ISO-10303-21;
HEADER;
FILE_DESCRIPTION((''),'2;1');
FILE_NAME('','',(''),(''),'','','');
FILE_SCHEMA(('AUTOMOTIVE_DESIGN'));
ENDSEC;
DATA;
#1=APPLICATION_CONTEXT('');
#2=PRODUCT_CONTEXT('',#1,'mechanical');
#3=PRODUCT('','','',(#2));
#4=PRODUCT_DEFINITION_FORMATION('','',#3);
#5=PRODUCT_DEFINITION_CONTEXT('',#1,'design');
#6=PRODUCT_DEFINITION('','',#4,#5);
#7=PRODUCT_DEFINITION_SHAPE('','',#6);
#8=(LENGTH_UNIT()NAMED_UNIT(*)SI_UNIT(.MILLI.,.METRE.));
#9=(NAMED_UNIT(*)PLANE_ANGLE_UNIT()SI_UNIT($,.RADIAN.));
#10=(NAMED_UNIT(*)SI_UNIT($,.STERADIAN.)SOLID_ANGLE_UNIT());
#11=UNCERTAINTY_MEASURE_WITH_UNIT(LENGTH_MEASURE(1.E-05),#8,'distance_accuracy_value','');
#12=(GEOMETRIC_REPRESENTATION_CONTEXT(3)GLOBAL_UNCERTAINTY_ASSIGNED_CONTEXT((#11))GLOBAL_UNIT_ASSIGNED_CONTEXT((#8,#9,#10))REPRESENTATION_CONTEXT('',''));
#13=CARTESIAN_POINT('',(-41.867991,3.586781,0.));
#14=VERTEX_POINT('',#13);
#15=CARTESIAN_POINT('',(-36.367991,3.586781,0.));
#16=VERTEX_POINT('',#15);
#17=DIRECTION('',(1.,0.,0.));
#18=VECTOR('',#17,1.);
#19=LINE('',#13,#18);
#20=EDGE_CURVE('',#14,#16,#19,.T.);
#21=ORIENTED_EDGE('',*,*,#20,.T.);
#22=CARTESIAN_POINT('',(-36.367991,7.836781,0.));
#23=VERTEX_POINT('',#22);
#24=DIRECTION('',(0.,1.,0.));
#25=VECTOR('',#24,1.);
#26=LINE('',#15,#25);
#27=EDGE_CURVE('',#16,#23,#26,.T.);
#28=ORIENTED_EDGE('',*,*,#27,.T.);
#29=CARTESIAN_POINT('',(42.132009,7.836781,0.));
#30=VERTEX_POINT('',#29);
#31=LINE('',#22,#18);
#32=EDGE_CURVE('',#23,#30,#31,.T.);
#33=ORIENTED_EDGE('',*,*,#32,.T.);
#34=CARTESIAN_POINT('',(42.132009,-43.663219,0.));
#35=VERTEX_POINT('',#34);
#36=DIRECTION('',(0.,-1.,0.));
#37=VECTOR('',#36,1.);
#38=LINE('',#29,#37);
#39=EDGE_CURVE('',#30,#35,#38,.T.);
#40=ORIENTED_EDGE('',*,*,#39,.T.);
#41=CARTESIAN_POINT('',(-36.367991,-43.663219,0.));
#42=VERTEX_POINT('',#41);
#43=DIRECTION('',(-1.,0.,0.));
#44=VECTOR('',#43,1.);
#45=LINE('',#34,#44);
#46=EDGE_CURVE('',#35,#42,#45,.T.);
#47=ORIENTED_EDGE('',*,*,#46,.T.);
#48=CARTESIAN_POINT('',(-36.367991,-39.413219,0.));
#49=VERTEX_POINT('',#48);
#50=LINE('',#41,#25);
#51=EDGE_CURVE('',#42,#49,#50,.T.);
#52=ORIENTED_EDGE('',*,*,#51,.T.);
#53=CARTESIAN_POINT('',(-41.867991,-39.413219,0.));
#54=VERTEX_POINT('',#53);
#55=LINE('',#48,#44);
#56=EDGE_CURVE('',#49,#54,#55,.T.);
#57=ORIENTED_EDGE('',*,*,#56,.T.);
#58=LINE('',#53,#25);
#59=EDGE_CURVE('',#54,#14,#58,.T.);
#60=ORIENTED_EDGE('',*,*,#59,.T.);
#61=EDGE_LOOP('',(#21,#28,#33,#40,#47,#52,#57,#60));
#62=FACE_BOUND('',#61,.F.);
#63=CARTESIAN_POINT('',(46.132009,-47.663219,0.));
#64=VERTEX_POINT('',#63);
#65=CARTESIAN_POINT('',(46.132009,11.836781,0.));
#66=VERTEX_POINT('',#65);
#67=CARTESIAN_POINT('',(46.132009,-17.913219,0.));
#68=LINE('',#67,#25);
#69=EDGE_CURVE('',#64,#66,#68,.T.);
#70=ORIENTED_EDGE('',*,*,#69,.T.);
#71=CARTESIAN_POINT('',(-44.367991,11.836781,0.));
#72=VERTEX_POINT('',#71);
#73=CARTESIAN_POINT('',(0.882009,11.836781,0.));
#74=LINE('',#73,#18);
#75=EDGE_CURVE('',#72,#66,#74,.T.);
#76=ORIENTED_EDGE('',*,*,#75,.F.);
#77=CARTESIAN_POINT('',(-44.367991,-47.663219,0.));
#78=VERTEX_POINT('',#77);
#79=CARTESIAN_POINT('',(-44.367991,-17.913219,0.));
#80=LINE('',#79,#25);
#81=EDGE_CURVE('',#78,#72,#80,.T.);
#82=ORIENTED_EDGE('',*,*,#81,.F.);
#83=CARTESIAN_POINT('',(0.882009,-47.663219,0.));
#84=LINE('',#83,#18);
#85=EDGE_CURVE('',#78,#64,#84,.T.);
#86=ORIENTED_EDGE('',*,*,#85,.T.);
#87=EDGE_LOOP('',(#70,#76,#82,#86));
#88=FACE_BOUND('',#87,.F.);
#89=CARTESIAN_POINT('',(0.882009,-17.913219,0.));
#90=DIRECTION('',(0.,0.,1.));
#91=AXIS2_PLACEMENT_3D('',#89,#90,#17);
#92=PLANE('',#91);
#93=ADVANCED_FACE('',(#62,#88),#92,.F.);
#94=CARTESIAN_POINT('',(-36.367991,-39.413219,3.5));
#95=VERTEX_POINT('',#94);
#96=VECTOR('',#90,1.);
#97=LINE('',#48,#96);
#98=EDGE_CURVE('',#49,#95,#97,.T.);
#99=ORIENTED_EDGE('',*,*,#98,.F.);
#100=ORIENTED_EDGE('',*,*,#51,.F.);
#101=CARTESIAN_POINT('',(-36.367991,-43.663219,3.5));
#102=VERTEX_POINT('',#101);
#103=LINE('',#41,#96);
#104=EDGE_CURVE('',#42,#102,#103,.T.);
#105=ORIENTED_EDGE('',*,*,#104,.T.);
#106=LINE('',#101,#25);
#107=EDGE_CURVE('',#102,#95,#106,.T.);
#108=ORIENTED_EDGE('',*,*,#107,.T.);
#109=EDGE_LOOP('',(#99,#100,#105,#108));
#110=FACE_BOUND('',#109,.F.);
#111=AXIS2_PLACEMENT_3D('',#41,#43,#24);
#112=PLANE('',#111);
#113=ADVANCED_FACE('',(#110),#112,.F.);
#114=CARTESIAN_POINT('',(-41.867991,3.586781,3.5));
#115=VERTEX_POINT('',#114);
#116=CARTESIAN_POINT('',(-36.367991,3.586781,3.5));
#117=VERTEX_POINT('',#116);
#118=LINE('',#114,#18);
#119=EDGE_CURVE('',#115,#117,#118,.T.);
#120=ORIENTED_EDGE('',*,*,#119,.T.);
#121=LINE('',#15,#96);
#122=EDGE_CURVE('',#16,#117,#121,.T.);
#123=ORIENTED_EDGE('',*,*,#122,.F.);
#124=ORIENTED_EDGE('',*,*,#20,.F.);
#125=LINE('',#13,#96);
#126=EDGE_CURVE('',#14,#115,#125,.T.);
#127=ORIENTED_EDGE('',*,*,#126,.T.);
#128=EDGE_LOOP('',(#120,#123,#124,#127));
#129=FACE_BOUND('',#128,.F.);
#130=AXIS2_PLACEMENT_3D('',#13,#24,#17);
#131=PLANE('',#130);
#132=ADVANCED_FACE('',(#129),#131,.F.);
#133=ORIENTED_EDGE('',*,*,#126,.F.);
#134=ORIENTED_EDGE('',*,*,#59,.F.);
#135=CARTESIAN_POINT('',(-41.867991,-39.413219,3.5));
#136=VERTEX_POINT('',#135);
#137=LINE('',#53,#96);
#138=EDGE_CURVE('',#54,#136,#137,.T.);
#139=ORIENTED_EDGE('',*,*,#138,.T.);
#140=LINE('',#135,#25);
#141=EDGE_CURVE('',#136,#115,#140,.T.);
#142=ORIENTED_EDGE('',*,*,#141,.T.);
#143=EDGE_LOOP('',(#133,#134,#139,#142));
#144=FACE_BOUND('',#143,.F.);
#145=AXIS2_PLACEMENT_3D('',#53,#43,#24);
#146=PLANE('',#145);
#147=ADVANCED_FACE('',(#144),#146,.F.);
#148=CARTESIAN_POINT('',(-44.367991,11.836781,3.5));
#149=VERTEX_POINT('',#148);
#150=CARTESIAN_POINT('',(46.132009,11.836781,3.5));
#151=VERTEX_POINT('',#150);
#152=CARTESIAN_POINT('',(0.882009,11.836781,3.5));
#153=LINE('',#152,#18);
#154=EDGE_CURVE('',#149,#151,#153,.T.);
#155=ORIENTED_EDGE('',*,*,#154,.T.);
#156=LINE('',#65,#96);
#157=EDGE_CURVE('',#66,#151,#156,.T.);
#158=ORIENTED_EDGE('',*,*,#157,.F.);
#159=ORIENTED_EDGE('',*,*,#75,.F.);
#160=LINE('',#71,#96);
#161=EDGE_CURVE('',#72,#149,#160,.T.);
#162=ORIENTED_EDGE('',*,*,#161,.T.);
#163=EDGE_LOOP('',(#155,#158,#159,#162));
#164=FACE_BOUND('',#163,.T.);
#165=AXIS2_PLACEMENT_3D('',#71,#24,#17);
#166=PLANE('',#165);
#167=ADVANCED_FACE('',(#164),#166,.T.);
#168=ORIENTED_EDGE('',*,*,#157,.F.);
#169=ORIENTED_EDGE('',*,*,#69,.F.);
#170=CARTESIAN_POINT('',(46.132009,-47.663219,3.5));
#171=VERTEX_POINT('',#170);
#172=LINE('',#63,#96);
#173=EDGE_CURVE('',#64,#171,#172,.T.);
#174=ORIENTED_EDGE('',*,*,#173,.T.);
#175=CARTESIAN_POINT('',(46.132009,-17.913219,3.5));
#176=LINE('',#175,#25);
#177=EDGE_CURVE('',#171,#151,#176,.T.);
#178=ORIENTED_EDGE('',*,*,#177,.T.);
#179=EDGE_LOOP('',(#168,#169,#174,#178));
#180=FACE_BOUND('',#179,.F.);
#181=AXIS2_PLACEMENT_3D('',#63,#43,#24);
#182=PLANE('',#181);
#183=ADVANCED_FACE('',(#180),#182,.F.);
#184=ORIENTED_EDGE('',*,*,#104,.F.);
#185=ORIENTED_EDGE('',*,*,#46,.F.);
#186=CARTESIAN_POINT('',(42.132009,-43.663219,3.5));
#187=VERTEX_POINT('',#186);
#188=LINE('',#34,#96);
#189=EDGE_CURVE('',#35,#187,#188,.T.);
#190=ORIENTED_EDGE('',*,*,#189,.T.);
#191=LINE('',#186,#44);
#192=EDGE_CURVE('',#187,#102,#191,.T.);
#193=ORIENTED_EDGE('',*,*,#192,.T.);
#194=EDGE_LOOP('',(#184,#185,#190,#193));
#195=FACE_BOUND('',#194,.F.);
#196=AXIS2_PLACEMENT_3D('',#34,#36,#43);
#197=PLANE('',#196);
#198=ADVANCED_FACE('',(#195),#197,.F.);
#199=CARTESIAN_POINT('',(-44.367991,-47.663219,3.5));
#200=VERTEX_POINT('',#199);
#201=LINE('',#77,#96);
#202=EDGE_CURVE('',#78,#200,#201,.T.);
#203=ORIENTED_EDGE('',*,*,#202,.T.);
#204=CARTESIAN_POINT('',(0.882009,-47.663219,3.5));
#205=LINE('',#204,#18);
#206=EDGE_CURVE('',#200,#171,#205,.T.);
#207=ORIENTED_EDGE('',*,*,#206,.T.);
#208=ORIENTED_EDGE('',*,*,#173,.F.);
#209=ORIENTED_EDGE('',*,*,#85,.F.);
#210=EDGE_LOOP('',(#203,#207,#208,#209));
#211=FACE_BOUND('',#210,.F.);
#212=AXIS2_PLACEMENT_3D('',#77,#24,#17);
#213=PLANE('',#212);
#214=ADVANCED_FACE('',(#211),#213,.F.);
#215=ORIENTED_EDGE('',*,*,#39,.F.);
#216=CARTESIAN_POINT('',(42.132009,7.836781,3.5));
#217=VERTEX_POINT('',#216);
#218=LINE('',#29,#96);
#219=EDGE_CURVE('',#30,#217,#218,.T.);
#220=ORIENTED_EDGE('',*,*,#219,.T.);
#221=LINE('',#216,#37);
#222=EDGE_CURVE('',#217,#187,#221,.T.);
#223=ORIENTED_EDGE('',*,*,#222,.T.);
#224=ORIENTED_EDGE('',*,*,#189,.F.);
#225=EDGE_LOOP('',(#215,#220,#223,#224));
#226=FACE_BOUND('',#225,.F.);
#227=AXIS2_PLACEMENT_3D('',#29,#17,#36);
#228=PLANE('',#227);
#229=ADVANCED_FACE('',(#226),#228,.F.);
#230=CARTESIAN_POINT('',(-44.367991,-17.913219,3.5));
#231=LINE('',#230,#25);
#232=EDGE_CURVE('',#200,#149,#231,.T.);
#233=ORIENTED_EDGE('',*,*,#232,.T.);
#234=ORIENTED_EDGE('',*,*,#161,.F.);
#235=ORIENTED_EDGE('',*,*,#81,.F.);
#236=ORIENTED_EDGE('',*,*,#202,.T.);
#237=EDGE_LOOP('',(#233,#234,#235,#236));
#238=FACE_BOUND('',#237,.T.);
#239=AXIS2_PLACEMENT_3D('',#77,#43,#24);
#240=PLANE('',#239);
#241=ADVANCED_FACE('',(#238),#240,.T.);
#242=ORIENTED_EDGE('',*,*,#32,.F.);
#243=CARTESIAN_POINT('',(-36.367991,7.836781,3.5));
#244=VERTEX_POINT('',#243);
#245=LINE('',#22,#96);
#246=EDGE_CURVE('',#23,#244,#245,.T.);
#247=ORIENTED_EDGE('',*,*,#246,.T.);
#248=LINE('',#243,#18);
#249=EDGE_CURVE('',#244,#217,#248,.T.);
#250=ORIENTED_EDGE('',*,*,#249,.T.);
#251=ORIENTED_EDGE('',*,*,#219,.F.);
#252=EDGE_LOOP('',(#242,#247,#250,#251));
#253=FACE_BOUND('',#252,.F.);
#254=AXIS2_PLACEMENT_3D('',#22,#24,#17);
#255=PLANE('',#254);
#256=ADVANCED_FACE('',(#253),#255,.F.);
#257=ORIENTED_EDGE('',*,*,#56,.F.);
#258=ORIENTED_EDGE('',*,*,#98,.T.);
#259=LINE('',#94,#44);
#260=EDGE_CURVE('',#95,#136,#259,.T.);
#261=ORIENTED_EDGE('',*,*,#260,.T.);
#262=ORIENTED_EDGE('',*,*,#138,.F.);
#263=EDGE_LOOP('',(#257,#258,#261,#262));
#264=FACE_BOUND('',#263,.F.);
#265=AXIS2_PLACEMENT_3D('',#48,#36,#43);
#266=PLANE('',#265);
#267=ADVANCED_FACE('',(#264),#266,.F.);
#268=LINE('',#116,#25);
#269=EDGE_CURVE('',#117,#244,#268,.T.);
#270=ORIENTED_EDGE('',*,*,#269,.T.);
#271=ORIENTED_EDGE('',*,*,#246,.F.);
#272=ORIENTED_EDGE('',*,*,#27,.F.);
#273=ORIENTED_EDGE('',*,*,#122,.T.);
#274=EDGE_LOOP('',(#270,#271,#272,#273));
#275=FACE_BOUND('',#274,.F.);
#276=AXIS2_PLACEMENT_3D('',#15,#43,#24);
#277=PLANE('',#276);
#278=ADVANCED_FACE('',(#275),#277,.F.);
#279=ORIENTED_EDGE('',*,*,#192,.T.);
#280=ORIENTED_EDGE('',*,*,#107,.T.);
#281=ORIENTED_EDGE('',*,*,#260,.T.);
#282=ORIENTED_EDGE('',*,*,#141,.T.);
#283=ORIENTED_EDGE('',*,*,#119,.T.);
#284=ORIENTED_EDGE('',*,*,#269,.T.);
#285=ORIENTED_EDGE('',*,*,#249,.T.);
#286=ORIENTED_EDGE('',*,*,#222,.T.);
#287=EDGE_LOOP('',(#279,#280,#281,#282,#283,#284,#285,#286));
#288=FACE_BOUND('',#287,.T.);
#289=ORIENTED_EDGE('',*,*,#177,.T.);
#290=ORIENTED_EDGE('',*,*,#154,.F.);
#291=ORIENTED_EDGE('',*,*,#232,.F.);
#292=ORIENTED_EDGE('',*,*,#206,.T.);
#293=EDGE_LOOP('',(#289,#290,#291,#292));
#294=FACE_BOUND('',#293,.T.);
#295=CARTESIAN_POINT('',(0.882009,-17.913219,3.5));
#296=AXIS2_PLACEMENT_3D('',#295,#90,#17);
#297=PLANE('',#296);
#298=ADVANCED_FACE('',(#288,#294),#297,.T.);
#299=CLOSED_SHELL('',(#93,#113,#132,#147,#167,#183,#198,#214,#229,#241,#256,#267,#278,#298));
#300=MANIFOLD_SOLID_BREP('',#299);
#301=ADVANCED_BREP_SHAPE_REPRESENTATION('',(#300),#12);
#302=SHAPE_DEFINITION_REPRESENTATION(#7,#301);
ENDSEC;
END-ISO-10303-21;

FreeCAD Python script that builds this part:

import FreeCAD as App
import Part
import Sketcher


def add_polygon(sketch, points):
    """Adds a closed chain of lines whose ends are joined by coincident constraints."""
    first, n = sketch.GeometryCount, len(points)
    for a, b in zip(points, points[1:] + points[:1]):
        sketch.addGeometry(Part.LineSegment(App.Vector(*a, 0), App.Vector(*b, 0)), False)
    for i in range(n):
        sketch.addConstraint(Sketcher.Constraint("Coincident", first + i, 2, first + (i + 1) % n, 1))

doc = App.newDocument("Part")
body = doc.addObject("PartDesign::Body", "Body")

# Sketch on XY plane
sketch1 = body.newObject("Sketcher::SketchObject", "Sketch")
sketch1.AttachmentSupport = (doc.getObject("XY_Plane"), [""])
sketch1.MapMode = "FlatFace"
add_polygon(sketch1, [(-44.4, 11.8), (-44.4, -47.7), (46.1, -47.7), (46.1, 11.8)])  # lines 0-3
add_polygon(sketch1, [(-36.4, -39.4), (-41.9, -39.4), (-41.9, 3.6), (-36.4, 3.6), (-36.4, 7.8), (42.1, 7.8), (42.1, -43.7), (-36.4, -43.7)])  # lines 4-11
sketch1.addConstraint([
    Sketcher.Constraint("Vertical", 0),
    Sketcher.Constraint("Horizontal", 1),
    Sketcher.Constraint("Vertical", 2),
    Sketcher.Constraint("Horizontal", 3),
    Sketcher.Constraint("Horizontal", 4),
    Sketcher.Constraint("Vertical", 5),
    Sketcher.Constraint("Horizontal", 6),
    Sketcher.Constraint("Vertical", 7),
    Sketcher.Constraint("Horizontal", 8),
    Sketcher.Constraint("Vertical", 9),
    Sketcher.Constraint("Horizontal", 10),
    Sketcher.Constraint("Vertical", 11),
    Sketcher.Constraint("Vertical", 7, 2, 10, 2),
    Sketcher.Constraint("Equal", 7, 11),
    Sketcher.Constraint("DistanceY", 5, 1, 5, 2, 43.0),
    Sketcher.Constraint("DistanceX", 1, 1, 1, 2, 90.5),
    Sketcher.Constraint("DistanceX", 4, 2, 4, 1, 5.5),
    Sketcher.Constraint("DistanceX", 8, 1, 8, 2, 78.5),
    Sketcher.Constraint("DistanceY", 0, 2, 0, 1, 59.5),
    Sketcher.Constraint("DistanceY", 9, 2, 9, 1, 51.5),
    Sketcher.Constraint("DistanceX", 4, 2, 1, 2, 88.0),
    Sketcher.Constraint("DistanceY", 7, 2, 3, 2, 4.0),
    Sketcher.Constraint("DistanceX", 0, 2, -1, 1, 44.367991),
    Sketcher.Constraint("DistanceY", 0, 2, -1, 1, 47.663219),
])
pad1 = body.newObject("PartDesign::Pad", "Pad")
pad1.Profile = sketch1
pad1.Length = 3.5

doc.recompute()
